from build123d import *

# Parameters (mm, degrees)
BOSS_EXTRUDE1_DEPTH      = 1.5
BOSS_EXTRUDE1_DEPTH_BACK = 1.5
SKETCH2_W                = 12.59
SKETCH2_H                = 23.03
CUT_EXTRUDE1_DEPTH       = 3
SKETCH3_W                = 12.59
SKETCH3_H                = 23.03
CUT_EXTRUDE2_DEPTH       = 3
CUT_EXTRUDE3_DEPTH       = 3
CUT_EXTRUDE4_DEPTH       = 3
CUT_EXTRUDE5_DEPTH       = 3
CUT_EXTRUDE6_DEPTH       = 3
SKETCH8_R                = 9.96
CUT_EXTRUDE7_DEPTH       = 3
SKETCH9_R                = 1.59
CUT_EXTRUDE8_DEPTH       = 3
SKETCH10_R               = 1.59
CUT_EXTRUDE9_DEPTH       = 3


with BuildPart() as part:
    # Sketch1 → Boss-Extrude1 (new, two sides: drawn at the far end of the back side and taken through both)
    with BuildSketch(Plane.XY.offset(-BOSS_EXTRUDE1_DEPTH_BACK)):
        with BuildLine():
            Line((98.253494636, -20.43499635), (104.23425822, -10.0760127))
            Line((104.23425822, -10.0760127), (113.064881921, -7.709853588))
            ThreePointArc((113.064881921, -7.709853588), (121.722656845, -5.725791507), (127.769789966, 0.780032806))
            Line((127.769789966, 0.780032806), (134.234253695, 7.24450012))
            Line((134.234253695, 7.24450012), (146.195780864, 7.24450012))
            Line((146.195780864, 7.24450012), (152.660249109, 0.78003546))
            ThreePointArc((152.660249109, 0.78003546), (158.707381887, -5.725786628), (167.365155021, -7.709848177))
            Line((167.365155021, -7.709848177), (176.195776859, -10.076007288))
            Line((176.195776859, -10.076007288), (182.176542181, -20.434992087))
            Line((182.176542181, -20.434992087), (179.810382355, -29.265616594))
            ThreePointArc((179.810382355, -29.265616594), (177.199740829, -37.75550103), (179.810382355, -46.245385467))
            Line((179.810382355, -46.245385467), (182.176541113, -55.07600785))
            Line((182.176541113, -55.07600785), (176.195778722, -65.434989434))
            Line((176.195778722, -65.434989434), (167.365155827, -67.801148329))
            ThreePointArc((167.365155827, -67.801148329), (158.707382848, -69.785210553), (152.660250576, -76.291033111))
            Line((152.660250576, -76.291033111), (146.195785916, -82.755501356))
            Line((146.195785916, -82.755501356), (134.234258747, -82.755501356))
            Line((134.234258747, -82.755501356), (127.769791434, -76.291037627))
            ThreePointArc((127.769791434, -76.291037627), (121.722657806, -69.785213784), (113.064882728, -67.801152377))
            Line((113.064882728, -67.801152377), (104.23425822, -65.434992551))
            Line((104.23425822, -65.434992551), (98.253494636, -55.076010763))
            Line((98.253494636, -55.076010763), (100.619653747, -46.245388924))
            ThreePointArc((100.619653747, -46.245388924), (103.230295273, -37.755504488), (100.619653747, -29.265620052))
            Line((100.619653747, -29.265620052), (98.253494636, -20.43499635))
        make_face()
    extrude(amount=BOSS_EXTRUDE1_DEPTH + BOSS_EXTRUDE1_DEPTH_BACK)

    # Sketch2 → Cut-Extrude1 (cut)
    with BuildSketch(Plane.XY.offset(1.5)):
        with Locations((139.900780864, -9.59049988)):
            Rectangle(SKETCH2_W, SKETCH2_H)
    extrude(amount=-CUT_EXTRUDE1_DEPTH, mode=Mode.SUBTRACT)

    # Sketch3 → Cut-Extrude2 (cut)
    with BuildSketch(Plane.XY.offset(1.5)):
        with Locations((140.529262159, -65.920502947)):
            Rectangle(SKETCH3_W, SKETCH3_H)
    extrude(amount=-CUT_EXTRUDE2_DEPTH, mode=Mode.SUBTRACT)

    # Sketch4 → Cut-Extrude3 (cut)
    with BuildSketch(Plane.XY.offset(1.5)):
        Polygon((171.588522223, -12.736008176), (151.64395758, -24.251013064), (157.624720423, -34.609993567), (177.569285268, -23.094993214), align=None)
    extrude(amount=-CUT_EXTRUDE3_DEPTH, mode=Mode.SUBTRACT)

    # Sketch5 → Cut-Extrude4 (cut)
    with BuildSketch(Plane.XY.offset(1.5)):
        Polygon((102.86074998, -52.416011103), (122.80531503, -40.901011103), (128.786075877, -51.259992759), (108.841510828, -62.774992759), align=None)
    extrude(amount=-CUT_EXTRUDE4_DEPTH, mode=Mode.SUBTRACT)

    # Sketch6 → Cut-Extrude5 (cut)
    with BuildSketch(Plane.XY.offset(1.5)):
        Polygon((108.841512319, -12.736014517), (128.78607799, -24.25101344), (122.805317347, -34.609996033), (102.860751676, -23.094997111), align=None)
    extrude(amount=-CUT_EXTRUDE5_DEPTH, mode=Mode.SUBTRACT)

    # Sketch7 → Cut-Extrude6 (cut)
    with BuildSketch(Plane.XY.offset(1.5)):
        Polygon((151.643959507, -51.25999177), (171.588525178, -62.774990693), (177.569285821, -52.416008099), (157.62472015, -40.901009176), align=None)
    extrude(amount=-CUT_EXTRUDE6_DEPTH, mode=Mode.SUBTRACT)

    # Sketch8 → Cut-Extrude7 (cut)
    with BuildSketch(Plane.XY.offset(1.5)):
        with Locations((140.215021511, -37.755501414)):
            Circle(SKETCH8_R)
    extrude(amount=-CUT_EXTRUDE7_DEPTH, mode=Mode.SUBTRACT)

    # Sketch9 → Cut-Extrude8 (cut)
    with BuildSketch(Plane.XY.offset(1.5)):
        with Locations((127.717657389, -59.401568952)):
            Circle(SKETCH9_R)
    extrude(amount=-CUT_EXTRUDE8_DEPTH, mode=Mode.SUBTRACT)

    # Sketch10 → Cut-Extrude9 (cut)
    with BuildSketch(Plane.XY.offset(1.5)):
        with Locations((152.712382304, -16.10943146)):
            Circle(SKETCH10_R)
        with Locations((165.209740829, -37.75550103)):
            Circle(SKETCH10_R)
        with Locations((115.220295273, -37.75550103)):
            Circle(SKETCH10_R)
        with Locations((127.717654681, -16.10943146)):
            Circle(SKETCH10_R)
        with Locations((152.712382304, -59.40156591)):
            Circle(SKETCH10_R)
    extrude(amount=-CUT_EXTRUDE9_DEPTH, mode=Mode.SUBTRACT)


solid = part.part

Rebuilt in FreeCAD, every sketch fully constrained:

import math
import FreeCAD as App
import Part
import Sketcher

V = App.Vector
Q = App.Units.Quantity


def add_polygon(sketch, points):
    """Adds a closed chain of lines whose ends are joined by coincident constraints."""
    first, n = sketch.GeometryCount, len(points)
    for a, b in zip(points, points[1:] + points[:1]):
        sketch.addGeometry(Part.LineSegment(App.Vector(*a, 0), App.Vector(*b, 0)), False)
    for i in range(n):
        sketch.addConstraint(Sketcher.Constraint("Coincident", first + i, 2, first + (i + 1) % n, 1))

doc = App.newDocument("Part")
params = doc.addObject("Spreadsheet::Sheet", "Params")
for row, (alias, value) in enumerate([
    ("sketch1_radius", "15.11 mm"),
    ("pad1_length", "1.5 mm"),
    ("pad1_length2", "1.5 mm"),
    ("sketch2_width", "12.59 mm"),
    ("sketch2_height", "23.03 mm"),
    ("pocket1_length", "3 mm"),
    ("sketch3_width", "12.59 mm"),
    ("sketch3_height", "23.03 mm"),
    ("pocket2_length", "3 mm"),
    ("sketch4_length", "23.03 mm"),
    ("pocket3_length", "3 mm"),
    ("sketch5_length", "23.03 mm"),
    ("pocket4_length", "3 mm"),
    ("sketch6_length", "23.03 mm"),
    ("pocket5_length", "3 mm"),
    ("sketch7_length", "23.03 mm"),
    ("pocket6_length", "3 mm"),
    ("sketch8_diameter", "19.92 mm"),
    ("pocket7_length", "3 mm"),
    ("sketch9_diameter", "3.18 mm"),
    ("pocket8_length", "3 mm"),
    ("sketch10_diameter", "3.18 mm"),
    ("pocket9_length", "3 mm"),
], start=1):
    params.set(f"A{row}", alias)
    params.set(f"B{row}", "=" + value)
    params.setAlias(f"B{row}", alias)

body = doc.addObject("PartDesign::Body", "Body")

sketch1 = body.newObject("Sketcher::SketchObject", "Sketch")
sketch1.AttachmentSupport = (doc.getObject("XY_Plane"), [""])
sketch1.MapMode = "FlatFace"
sketch1.addGeometry([
    Part.LineSegment(V(104.234258, -10.076013, 0), V(98.253495, -20.434996, 0)),
    Part.LineSegment(V(98.253495, -20.434996, 0), V(100.619654, -29.26562, 0)),
    Part.ArcOfCircle(Part.Circle(V(88.120295, -37.755504, 0), V(0, 0, 1), 15.11), math.radians(-34.185351), math.radians(34.185351)),
    Part.LineSegment(V(100.619654, -46.245389, 0), V(98.253495, -55.076011, 0)),
    Part.LineSegment(V(98.253495, -55.076011, 0), V(104.234258, -65.434993, 0)),
    Part.LineSegment(V(104.234258, -65.434993, 0), V(113.064883, -67.801152, 0)),
    Part.ArcOfCircle(Part.Circle(V(114.167656, -82.870857, 0), V(0, 0, 1), 15.11), math.radians(25.814646), math.radians(94.185341)),
    Part.LineSegment(V(127.769791, -76.291038, 0), V(134.234259, -82.755501, 0)),
    Part.LineSegment(V(134.234259, -82.755501, 0), V(146.195786, -82.755501, 0)),
    Part.LineSegment(V(146.195786, -82.755501, 0), V(152.660251, -76.291033, 0)),
    Part.ArcOfCircle(Part.Circle(V(166.262385, -82.870853, 0), V(0, 0, 1), 15.11), math.radians(85.814671), math.radians(154.185351)),
    Part.LineSegment(V(167.365156, -67.801148, 0), V(176.195779, -65.434989, 0)),
    Part.LineSegment(V(176.195779, -65.434989, 0), V(182.176541, -55.076008, 0)),
    Part.LineSegment(V(182.176541, -55.076008, 0), V(179.810382, -46.245385, 0)),
    Part.ArcOfCircle(Part.Circle(V(192.309741, -37.755501, 0), V(0, 0, 1), 15.11), math.radians(145.814649), math.radians(214.185351)),
    Part.LineSegment(V(179.810382, -29.265617, 0), V(182.176542, -20.434992, 0)),
    Part.LineSegment(V(182.176542, -20.434992, 0), V(176.195777, -10.076007, 0)),
    Part.LineSegment(V(176.195777, -10.076007, 0), V(167.365155, -7.709848, 0)),
    Part.ArcOfCircle(Part.Circle(V(166.262383, 7.359856, 0), V(0, 0, 1), 15.11), math.radians(-154.185347), math.radians(-85.814667)),
    Part.LineSegment(V(152.660249, 0.780035, 0), V(146.195781, 7.2445, 0)),
    Part.LineSegment(V(146.195781, 7.2445, 0), V(134.234254, 7.2445, 0)),
    Part.LineSegment(V(134.234254, 7.2445, 0), V(127.76979, 0.780033, 0)),
    Part.ArcOfCircle(Part.Circle(V(114.167654, 7.359851, 0), V(0, 0, 1), 15.11), math.radians(-94.185336), math.radians(-25.814642)),
    Part.LineSegment(V(113.064882, -7.709854, 0), V(104.234258, -10.076013, 0)),
], False)
sketch1.addConstraint([
    Sketcher.Constraint("Coincident", 0, 2, 1, 1),
    Sketcher.Constraint("Coincident", 1, 2, 2, 2),
    Sketcher.Constraint("Coincident", 2, 1, 3, 1),
    Sketcher.Constraint("Coincident", 3, 2, 4, 1),
    Sketcher.Constraint("Coincident", 4, 2, 5, 1),
    Sketcher.Constraint("Coincident", 5, 2, 6, 2),
    Sketcher.Constraint("Coincident", 6, 1, 7, 1),
    Sketcher.Constraint("Coincident", 7, 2, 8, 1),
    Sketcher.Constraint("Coincident", 8, 2, 9, 1),
    Sketcher.Constraint("Coincident", 9, 2, 10, 2),
    Sketcher.Constraint("Coincident", 10, 1, 11, 1),
    Sketcher.Constraint("Coincident", 11, 2, 12, 1),
    Sketcher.Constraint("Coincident", 12, 2, 13, 1),
    Sketcher.Constraint("Coincident", 13, 2, 14, 2),
    Sketcher.Constraint("Coincident", 14, 1, 15, 1),
    Sketcher.Constraint("Coincident", 15, 2, 16, 1),
    Sketcher.Constraint("Coincident", 16, 2, 17, 1),
    Sketcher.Constraint("Coincident", 17, 2, 18, 2),
    Sketcher.Constraint("Coincident", 18, 1, 19, 1),
    Sketcher.Constraint("Coincident", 19, 2, 20, 1),
    Sketcher.Constraint("Coincident", 20, 2, 21, 1),
    Sketcher.Constraint("Coincident", 21, 2, 22, 2),
    Sketcher.Constraint("Coincident", 22, 1, 23, 1),
    Sketcher.Constraint("Coincident", 23, 2, 0, 1),
    Sketcher.Constraint("Horizontal", 8),
    Sketcher.Constraint("Horizontal", 20),
    Sketcher.Constraint("Equal", 2, 6),
    Sketcher.Constraint("Equal", 6, 10),
    Sketcher.Constraint("Equal", 10, 14),
    Sketcher.Constraint("Equal", 14, 18),
    Sketcher.Constraint("Equal", 18, 22),
    Sketcher.Constraint("Perpendicular", 3, 5),
    Sketcher.Constraint("Perpendicular", 7, 9),
    Sketcher.Constraint("Perpendicular", 1, 11),
    Sketcher.Constraint("Parallel", 0, 12),
    Sketcher.Constraint("Perpendicular", 11, 13),
    Sketcher.Constraint("Perpendicular", 5, 15),
    Sketcher.Constraint("Parallel", 4, 16),
    Sketcher.Constraint("Perpendicular", 15, 17),
    Sketcher.Constraint("Perpendicular", 9, 19),
    Sketcher.Constraint("Perpendicular", 19, 21),
    Sketcher.Constraint("Perpendicular", 13, 23),
    Sketcher.Constraint("Vertical", 10, 3, 18, 3),
    Sketcher.Constraint("Vertical", 6, 3, 22, 3),
    Sketcher.Constraint("Vertical", 1, 2, 2, 1),
    Sketcher.Constraint("Vertical", 0, 2, 3, 2),
    Sketcher.Constraint("Vertical", 13, 2, 14, 1),
    Sketcher.Constraint("Vertical", 12, 2, 15, 2),
    Sketcher.Constraint("Vertical", 11, 2, 16, 2),
    Sketcher.Constraint("Vertical", 10, 1, 17, 2),
    Sketcher.Constraint("Vertical", 9, 2, 18, 1),
    Sketcher.Constraint("Vertical", 6, 1, 21, 2),
    Sketcher.Constraint("Vertical", 5, 2, 22, 1),
    Sketcher.Constraint("Vertical", 4, 2, 23, 2),
    Sketcher.Constraint("Equal", 8, 20),
    Sketcher.Constraint("Equal", 1, 3),
    Sketcher.Constraint("Equal", 0, 4),
    Sketcher.Constraint("Equal", 1, 5),
    Sketcher.Constraint("Equal", 5, 7),
    Sketcher.Constraint("Equal", 7, 9),
    Sketcher.Constraint("Equal", 7, 11),
    Sketcher.Constraint("Equal", 4, 12),
    Sketcher.Constraint("Equal", 11, 13),
    Sketcher.Constraint("Equal", 15, 19),
    Sketcher.Constraint("Angle", 0, Q("-120.000007 deg")),
    Sketcher.Constraint("Angle", 1, Q("-74.999996 deg")),
    Sketcher.Constraint("Angle", 7, Q("-44.999984 deg")),
    Sketcher.Constraint("Radius", 2, Q("15.11 mm")),
    Sketcher.Constraint("DistanceX", 4, 2, 7, 2, Q("30.000001 mm")),
    Sketcher.Constraint("DistanceX", 1, 2, 22, 3, Q("13.548001 mm")),
    Sketcher.Constraint("DistanceX", 18, 3, 14, 1, Q("13.547999 mm")),
    Sketcher.Constraint("DistanceY", 14, 3, -1, 1, Q("37.755501 mm")),
    Sketcher.Constraint("DistanceY", 7, 2, -1, 1, Q("82.755501 mm")),
    Sketcher.Constraint("DistanceX", 2, 3, 0, 2, Q("10.133199 mm")),
    Sketcher.Constraint("DistanceX", 4, 2, 6, 3, Q("9.933398 mm")),
    Sketcher.Constraint("DistanceX", 8, 2, 10, 3, Q("20.066599 mm")),
    Sketcher.Constraint("DistanceX", 20, 2, 17, 2, Q("33.130901 mm")),
    Sketcher.Constraint("DistanceX", -1, 1, 14, 3, Q("192.309741 mm")),
])
sketch1.setExpression("Constraints[67]", "Params.sketch1_radius")
pad1 = body.newObject("PartDesign::Pad", "Pad")
pad1.Profile = sketch1
pad1.Type = "TwoLengths"
pad1.setExpression("Length", "Params.pad1_length")
pad1.setExpression("Length2", "Params.pad1_length2")

sketch2 = body.newObject("Sketcher::SketchObject", "Sketch001")
sketch2.AttachmentSupport = (doc.getObject("XY_Plane"), [""])
sketch2.MapMode = "FlatFace"
sketch2.AttachmentOffset = App.Placement(V(0, 0, 1.5), App.Rotation())
add_polygon(sketch2, [(133.605781, 1.9245), (133.605781, -21.1055), (146.195781, -21.1055), (146.195781, 1.9245)])
sketch2.addConstraint([
    Sketcher.Constraint("Vertical", 0),
    Sketcher.Constraint("Horizontal", 1),
    Sketcher.Constraint("Vertical", 2),
    Sketcher.Constraint("Horizontal", 3),
    Sketcher.Constraint("DistanceX", 1, 1, 1, 2, Q("12.59 mm")),
    Sketcher.Constraint("DistanceY", 0, 2, 0, 1, Q("23.03 mm")),
    Sketcher.Constraint("DistanceY", 0, 2, -1, 1, Q("21.1055 mm")),
    Sketcher.Constraint("DistanceX", -1, 1, 0, 2, Q("133.605781 mm")),
])
sketch2.setExpression("Constraints[8]", "Params.sketch2_width")
sketch2.setExpression("Constraints[9]", "Params.sketch2_height")
pocket1 = body.newObject("PartDesign::Pocket", "Pocket")
pocket1.Profile = sketch2
pocket1.setExpression("Length", "Params.pocket1_length")

sketch3 = body.newObject("Sketcher::SketchObject", "Sketch002")
sketch3.AttachmentSupport = (doc.getObject("XY_Plane"), [""])
sketch3.MapMode = "FlatFace"
sketch3.AttachmentOffset = App.Placement(V(0, 0, 1.5), App.Rotation())
add_polygon(sketch3, [(134.234262, -54.405503), (134.234262, -77.435503), (146.824262, -77.435503), (146.824262, -54.405503)])
sketch3.addConstraint([
    Sketcher.Constraint("Vertical", 0),
    Sketcher.Constraint("Horizontal", 1),
    Sketcher.Constraint("Vertical", 2),
    Sketcher.Constraint("Horizontal", 3),
    Sketcher.Constraint("DistanceX", 1, 1, 1, 2, Q("12.59 mm")),
    Sketcher.Constraint("DistanceY", 0, 2, 0, 1, Q("23.03 mm")),
    Sketcher.Constraint("DistanceX", -1, 1, 0, 2, Q("134.234262 mm")),
    Sketcher.Constraint("DistanceY", 0, 2, -1, 1, Q("77.435503 mm")),
])
sketch3.setExpression("Constraints[8]", "Params.sketch3_width")
sketch3.setExpression("Constraints[9]", "Params.sketch3_height")
pocket2 = body.newObject("PartDesign::Pocket", "Pocket001")
pocket2.Profile = sketch3
pocket2.setExpression("Length", "Params.pocket2_length")

sketch4 = body.newObject("Sketcher::SketchObject", "Sketch003")
sketch4.AttachmentSupport = (doc.getObject("XY_Plane"), [""])
sketch4.MapMode = "FlatFace"
sketch4.AttachmentOffset = App.Placement(V(0, 0, 1.5), App.Rotation())
add_polygon(sketch4, [(171.588522, -12.736008), (151.643958, -24.251013), (157.62472, -34.609994), (177.569285, -23.094993)])
sketch4.addConstraint([
    Sketcher.Constraint("Perpendicular", 0, 1),
    Sketcher.Constraint("Perpendicular", 1, 2),
    Sketcher.Constraint("Perpendicular", 2, 3),
    Sketcher.Constraint("Angle", 0, Q("-149.999989 deg")),
    Sketcher.Constraint("Distance", 2, Q("23.03 mm")),
    Sketcher.Constraint("DistanceX", 1, 2, 3, 2, Q("13.963802 mm")),
    Sketcher.Constraint("DistanceX", -1, 1, 1, 2, Q("157.62472 mm")),
    Sketcher.Constraint("DistanceY", 3, 2, -1, 1, Q("12.736008 mm")),
])
sketch4.setExpression("Constraints[8]", "Params.sketch4_length")
pocket3 = body.newObject("PartDesign::Pocket", "Pocket002")
pocket3.Profile = sketch4
pocket3.setExpression("Length", "Params.pocket3_length")

sketch5 = body.newObject("Sketcher::SketchObject", "Sketch004")
sketch5.AttachmentSupport = (doc.getObject("XY_Plane"), [""])
sketch5.MapMode = "FlatFace"
sketch5.AttachmentOffset = App.Placement(V(0, 0, 1.5), App.Rotation())
add_polygon(sketch5, [(122.805315, -40.901011), (102.86075, -52.416011), (108.841511, -62.774993), (128.786076, -51.259993)])
sketch5.addConstraint([
    Sketcher.Constraint("Perpendicular", 0, 1),
    Sketcher.Constraint("Perpendicular", 1, 2),
    Sketcher.Constraint("Perpendicular", 2, 3),
    Sketcher.Constraint("Angle", 0, Q("-150 deg")),
    Sketcher.Constraint("Distance", 0, Q("23.03 mm")),
    Sketcher.Constraint("Distance", 1, Q("11.961522 mm")),
    Sketcher.Constraint("DistanceX", -1, 1, 0, 2, Q("102.86075 mm")),
    Sketcher.Constraint("DistanceY", 0, 2, -1, 1, Q("52.416011 mm")),
])
sketch5.setExpression("Constraints[8]", "Params.sketch5_length")
pocket4 = body.newObject("PartDesign::Pocket", "Pocket003")
pocket4.Profile = sketch5
pocket4.setExpression("Length", "Params.pocket4_length")

sketch6 = body.newObject("Sketcher::SketchObject", "Sketch005")
sketch6.AttachmentSupport = (doc.getObject("XY_Plane"), [""])
sketch6.MapMode = "FlatFace"
sketch6.AttachmentOffset = App.Placement(V(0, 0, 1.5), App.Rotation())
add_polygon(sketch6, [(128.786078, -24.251013), (108.841512, -12.736015), (102.860752, -23.094997), (122.805317, -34.609996)])
sketch6.addConstraint([
    Sketcher.Constraint("Perpendicular", 0, 1),
    Sketcher.Constraint("Perpendicular", 1, 2),
    Sketcher.Constraint("Perpendicular", 2, 3),
    Sketcher.Constraint("Angle", 0, Q("150.000003 deg")),
    Sketcher.Constraint("Distance", 0, Q("23.03 mm")),
    Sketcher.Constraint("DistanceX", -1, 1, 1, 2, Q("102.860752 mm")),
    Sketcher.Constraint("DistanceX", 1, 2, 0, 2, Q("5.980761 mm")),
    Sketcher.Constraint("DistanceY", 0, 2, -1, 1, Q("12.736015 mm")),
])
sketch6.setExpression("Constraints[8]", "Params.sketch6_length")
pocket5 = body.newObject("PartDesign::Pocket", "Pocket004")
pocket5.Profile = sketch6
pocket5.setExpression("Length", "Params.pocket5_length")

sketch7 = body.newObject("Sketcher::SketchObject", "Sketch006")
sketch7.AttachmentSupport = (doc.getObject("XY_Plane"), [""])
sketch7.MapMode = "FlatFace"
sketch7.AttachmentOffset = App.Placement(V(0, 0, 1.5), App.Rotation())
add_polygon(sketch7, [(151.64396, -51.259992), (171.588525, -62.774991), (177.569286, -52.416008), (157.62472, -40.901009)])
sketch7.addConstraint([
    Sketcher.Constraint("Perpendicular", 0, 1),
    Sketcher.Constraint("Perpendicular", 1, 2),
    Sketcher.Constraint("Perpendicular", 2, 3),
    Sketcher.Constraint("Angle", 0, Q("-29.999997 deg")),
    Sketcher.Constraint("Distance", 0, Q("23.03 mm")),
    Sketcher.Constraint("DistanceY", 0, 2, -1, 1, Q("62.774991 mm")),
    Sketcher.Constraint("DistanceY", 1, 2, -1, 1, Q("52.416008 mm")),
    Sketcher.Constraint("DistanceX", -1, 1, 2, 2, Q("157.62472 mm")),
])
sketch7.setExpression("Constraints[8]", "Params.sketch7_length")
pocket6 = body.newObject("PartDesign::Pocket", "Pocket005")
pocket6.Profile = sketch7
pocket6.setExpression("Length", "Params.pocket6_length")

sketch8 = body.newObject("Sketcher::SketchObject", "Sketch007")
sketch8.AttachmentSupport = (doc.getObject("XY_Plane"), [""])
sketch8.MapMode = "FlatFace"
sketch8.AttachmentOffset = App.Placement(V(0, 0, 1.5), App.Rotation())
sketch8.addGeometry(Part.Circle(V(140.215022, -37.755501, 0), V(0, 0, 1), 9.96), False)
sketch8.addConstraint([
    Sketcher.Constraint("Diameter", 0, Q("19.92 mm")),
    Sketcher.Constraint("DistanceY", 0, 3, -1, 1, Q("37.755501 mm")),
    Sketcher.Constraint("DistanceX", -1, 1, 0, 3, Q("140.215022 mm")),
])
sketch8.setExpression("Constraints[0]", "Params.sketch8_diameter")
pocket7 = body.newObject("PartDesign::Pocket", "Pocket006")
pocket7.Profile = sketch8
pocket7.setExpression("Length", "Params.pocket7_length")

sketch9 = body.newObject("Sketcher::SketchObject", "Sketch008")
sketch9.AttachmentSupport = (doc.getObject("XY_Plane"), [""])
sketch9.MapMode = "FlatFace"
sketch9.AttachmentOffset = App.Placement(V(0, 0, 1.5), App.Rotation())
sketch9.addGeometry(Part.Circle(V(127.717657, -59.401569, 0), V(0, 0, 1), 1.59), False)
sketch9.addConstraint([
    Sketcher.Constraint("Diameter", 0, Q("3.18 mm")),
    Sketcher.Constraint("DistanceY", 0, 3, -1, 1, Q("59.401569 mm")),
    Sketcher.Constraint("DistanceX", -1, 1, 0, 3, Q("127.717657 mm")),
])
sketch9.setExpression("Constraints[0]", "Params.sketch9_diameter")
pocket8 = body.newObject("PartDesign::Pocket", "Pocket007")
pocket8.Profile = sketch9
pocket8.setExpression("Length", "Params.pocket8_length")

sketch10 = body.newObject("Sketcher::SketchObject", "Sketch009")
sketch10.AttachmentSupport = (doc.getObject("XY_Plane"), [""])
sketch10.MapMode = "FlatFace"
sketch10.AttachmentOffset = App.Placement(V(0, 0, 1.5), App.Rotation())
sketch10.addGeometry([
    Part.Circle(V(152.712382, -16.109431, 0), V(0, 0, 1), 1.59),
    Part.Circle(V(165.209741, -37.755501, 0), V(0, 0, 1), 1.59),
    Part.Circle(V(115.220295, -37.755501, 0), V(0, 0, 1), 1.59),
    Part.Circle(V(127.717655, -16.109431, 0), V(0, 0, 1), 1.59),
    Part.Circle(V(152.712382, -59.401566, 0), V(0, 0, 1), 1.59),
], False)
sketch10.addConstraint([
    Sketcher.Constraint("Equal", 0, 1),
    Sketcher.Constraint("Equal", 1, 2),
    Sketcher.Constraint("Equal", 2, 3),
    Sketcher.Constraint("Equal", 3, 4),
    Sketcher.Constraint("Horizontal", 1, 3, 2, 3),
    Sketcher.Constraint("Horizontal", 0, 3, 3, 3),
    Sketcher.Constraint("Vertical", 0, 3, 4, 3),
    Sketcher.Constraint("Diameter", 0, Q("3.18 mm")),
    Sketcher.Constraint("DistanceY", 1, 3, -1, 1, Q("37.755501 mm")),
    Sketcher.Constraint("DistanceY", 0, 3, -1, 1, Q("16.109431 mm")),
    Sketcher.Constraint("DistanceX", -1, 1, 1, 3, Q("165.209741 mm")),
    Sketcher.Constraint("DistanceX", 0, 3, 1, 3, Q("12.497359 mm")),
    Sketcher.Constraint("DistanceX", 2, 3, 3, 3, Q("12.497359 mm")),
    Sketcher.Constraint("DistanceX", -1, 1, 2, 3, Q("115.220295 mm")),
    Sketcher.Constraint("DistanceY", 4, 3, -1, 1, Q("59.401566 mm")),
])
sketch10.setExpression("Constraints[7]", "Params.sketch10_diameter")
pocket9 = body.newObject("PartDesign::Pocket", "Pocket008")
pocket9.Profile = sketch10
pocket9.setExpression("Length", "Params.pocket9_length")

doc.recompute()
